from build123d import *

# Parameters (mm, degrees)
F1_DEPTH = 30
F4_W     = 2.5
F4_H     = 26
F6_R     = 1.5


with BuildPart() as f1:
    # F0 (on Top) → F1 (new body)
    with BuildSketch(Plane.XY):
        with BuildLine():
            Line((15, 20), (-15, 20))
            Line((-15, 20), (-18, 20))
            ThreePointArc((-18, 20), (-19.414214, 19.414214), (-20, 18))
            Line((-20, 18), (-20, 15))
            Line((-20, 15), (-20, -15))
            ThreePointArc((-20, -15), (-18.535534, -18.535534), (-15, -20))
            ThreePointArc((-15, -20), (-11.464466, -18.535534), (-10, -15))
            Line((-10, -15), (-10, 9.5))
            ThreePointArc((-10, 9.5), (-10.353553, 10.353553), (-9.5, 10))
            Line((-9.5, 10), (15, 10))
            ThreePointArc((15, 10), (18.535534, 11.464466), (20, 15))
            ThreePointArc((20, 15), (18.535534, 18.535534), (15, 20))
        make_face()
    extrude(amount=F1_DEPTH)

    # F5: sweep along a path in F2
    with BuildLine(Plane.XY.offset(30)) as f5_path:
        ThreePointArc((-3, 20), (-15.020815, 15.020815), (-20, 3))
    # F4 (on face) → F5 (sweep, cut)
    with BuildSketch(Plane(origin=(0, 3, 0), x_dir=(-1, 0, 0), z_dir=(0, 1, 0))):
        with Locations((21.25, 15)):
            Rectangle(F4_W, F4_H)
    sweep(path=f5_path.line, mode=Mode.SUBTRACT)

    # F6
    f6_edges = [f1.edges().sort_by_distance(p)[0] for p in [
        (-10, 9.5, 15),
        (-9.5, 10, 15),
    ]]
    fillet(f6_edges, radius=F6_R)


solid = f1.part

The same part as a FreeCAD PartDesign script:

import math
import FreeCAD as App
import Part
import Sketcher


def edges_at(feature, points):
    """Names of the edges that pass closest to the given points."""
    edges = feature.Shape.Edges
    near = lambda p: min(range(len(edges)), key=lambda i: edges[i].distToShape(Part.Vertex(*p))[0])
    return sorted({f"Edge{near(p) + 1}" for p in points})


def add_polygon(sketch, points):
    """Adds a closed chain of lines whose ends are joined by coincident constraints."""
    first, n = sketch.GeometryCount, len(points)
    for a, b in zip(points, points[1:] + points[:1]):
        sketch.addGeometry(Part.LineSegment(App.Vector(*a, 0), App.Vector(*b, 0)), False)
    for i in range(n):
        sketch.addConstraint(Sketcher.Constraint("Coincident", first + i, 2, first + (i + 1) % n, 1))

doc = App.newDocument("Part")
params = doc.addObject("Spreadsheet::Sheet", "Params")
for row, (alias, value) in enumerate([
    ("sketch1_radius", "1.999999 mm"),
    ("sketch1_radius2", "5 mm"),
    ("sketch1_radius3", "0.5 mm"),
    ("sketch1_width", "33 mm"),
    ("pad1_length", "30 mm"),
    ("sketch2_height", "26 mm"),
    ("sketch2_width", "2.5 mm"),
    ("sketch3_radius", "17.000001 mm"),
    ("fillet_radius", "1.5 mm"),
], start=1):
    params.set(f"A{row}", alias)
    params.set(f"B{row}", "=" + value)
    params.setAlias(f"B{row}", alias)

body = doc.addObject("PartDesign::Body", "Body")

# Sketch on XY plane
sketch1 = doc.addObject("Sketcher::SketchObject", "Sketch")
body.addObject(sketch1)
sketch1.AttachmentSupport = (doc.XY_Plane, [""])
sketch1.MapMode = "FlatFace"
sketch1.addGeometry(Part.LineSegment(App.Vector(15, 20, 0), App.Vector(-18, 20, 0)), False)
sketch1.addGeometry(Part.ArcOfCircle(Part.Circle(App.Vector(-18, 18, 0), App.Vector(0, 0, 1), 2), math.radians(90), math.radians(180)), False)
sketch1.addGeometry(Part.LineSegment(App.Vector(-20, 18, 0), App.Vector(-20, -15, 0)), False)
sketch1.addGeometry(Part.ArcOfCircle(Part.Circle(App.Vector(-15, -15, 0), App.Vector(0, 0, 1), 5), math.radians(180), math.radians(270)), False)
sketch1.addGeometry(Part.ArcOfCircle(Part.Circle(App.Vector(-15, -15, 0), App.Vector(0, 0, 1), 5), math.radians(-90), math.radians(0)), False)
sketch1.addGeometry(Part.LineSegment(App.Vector(-10, -15, 0), App.Vector(-10, 9.5, 0)), False)
sketch1.addGeometry(Part.ArcOfCircle(Part.Circle(App.Vector(-10, 10, 0), App.Vector(0, 0, 1), 0.5), math.radians(0), math.radians(270)), False)
sketch1.addGeometry(Part.LineSegment(App.Vector(-9.5, 10, 0), App.Vector(15, 10, 0)), False)
sketch1.addGeometry(Part.ArcOfCircle(Part.Circle(App.Vector(15, 15, 0), App.Vector(0, 0, 1), 5), math.radians(-90), math.radians(0)), False)
sketch1.addGeometry(Part.ArcOfCircle(Part.Circle(App.Vector(15, 15, 0), App.Vector(0, 0, 1), 5), math.radians(0), math.radians(90)), False)
sketch1.addConstraint(Sketcher.Constraint("Tangent", 0, 2, 1, 1))
sketch1.addConstraint(Sketcher.Constraint("Tangent", 1, 2, 2, 1))
sketch1.addConstraint(Sketcher.Constraint("Tangent", 2, 2, 3, 1))
sketch1.addConstraint(Sketcher.Constraint("Tangent", 3, 2, 4, 1))
sketch1.addConstraint(Sketcher.Constraint("Tangent", 4, 2, 5, 1))
sketch1.addConstraint(Sketcher.Constraint("Coincident", 5, 2, 6, 2))
sketch1.addConstraint(Sketcher.Constraint("Coincident", 6, 1, 7, 1))
sketch1.addConstraint(Sketcher.Constraint("Tangent", 7, 2, 8, 1))
sketch1.addConstraint(Sketcher.Constraint("Tangent", 8, 2, 9, 1))
sketch1.addConstraint(Sketcher.Constraint("Tangent", 9, 2, 0, 1))
sketch1.addConstraint(Sketcher.Constraint("Horizontal", 0))
sketch1.addConstraint(Sketcher.Constraint("Vertical", 2))
sketch1.addConstraint(Sketcher.Constraint("Vertical", 5))
sketch1.addConstraint(Sketcher.Constraint("Horizontal", 7))
sketch1.addConstraint(Sketcher.Constraint("Equal", 3, 4))
sketch1.addConstraint(Sketcher.Constraint("Equal", 4, 8))
sketch1.addConstraint(Sketcher.Constraint("Equal", 8, 9))
sketch1.addConstraint(Sketcher.Constraint("Symmetric", 3, 3, 8, 3, -1, 1))
sketch1.addConstraint(Sketcher.Constraint("Horizontal", 9, 3, 8, 2))
sketch1.addConstraint(Sketcher.Constraint("Vertical", 4, 3, 3, 2))
sketch1.addConstraint(Sketcher.Constraint("Vertical", 6, 3, 4, 2))
sketch1.addConstraint(Sketcher.Constraint("Equal", 0, 2))
sketch1.addConstraint(Sketcher.Constraint("Equal", 7, 5))
sketch1.addConstraint(Sketcher.Constraint("Radius", 1, 1.999999))
sketch1.addConstraint(Sketcher.Constraint("Radius", 3, 5.0))
sketch1.addConstraint(Sketcher.Constraint("Radius", 6, 0.5))
sketch1.addConstraint(Sketcher.Constraint("DistanceX", 0, 2, 0, 1, 33.0))
sketch1.setExpression("Constraints[23]", "Params.sketch1_radius")
sketch1.setExpression("Constraints[24]", "Params.sketch1_radius2")
sketch1.setExpression("Constraints[25]", "Params.sketch1_radius3")
sketch1.setExpression("Constraints[26]", "Params.sketch1_width")
pad1 = doc.addObject("PartDesign::Pad", "Pad")
body.addObject(pad1)
pad1.Profile = sketch1
pad1.setExpression("Length", "Params.pad1_length")

# Sketch on XZ plane
sketch2 = doc.addObject("Sketcher::SketchObject", "Sketch001")
body.addObject(sketch2)
sketch2.AttachmentSupport = (doc.XZ_Plane, [""])
sketch2.MapMode = "FlatFace"
sketch2.AttachmentOffset = App.Placement(App.Vector(0, 0, -3), App.Rotation())
add_polygon(sketch2, [(-20, 28), (-20, 2), (-22.5, 2), (-22.5, 28)])  # lines 0-3
sketch2.addConstraint(Sketcher.Constraint("Vertical", 0))
sketch2.addConstraint(Sketcher.Constraint("Horizontal", 1))
sketch2.addConstraint(Sketcher.Constraint("Vertical", 2))
sketch2.addConstraint(Sketcher.Constraint("Horizontal", 3))
sketch2.addConstraint(Sketcher.Constraint("DistanceY", 0, 2, 0, 1, 26.0))
sketch2.addConstraint(Sketcher.Constraint("DistanceX", 1, 2, 1, 1, 2.5))
sketch2.addConstraint(Sketcher.Constraint("DistanceX", 0, 2, -1, 1, 20.0))
sketch2.addConstraint(Sketcher.Constraint("DistanceY", -1, 1, 0, 2, 2.0))
sketch2.setExpression("Constraints[8]", "Params.sketch2_height")
sketch2.setExpression("Constraints[9]", "Params.sketch2_width")

# Sketch on XY plane
sketch3 = doc.addObject("Sketcher::SketchObject", "Sketch002")
body.addObject(sketch3)
sketch3.AttachmentSupport = (doc.XY_Plane, [""])
sketch3.MapMode = "FlatFace"
sketch3.AttachmentOffset = App.Placement(App.Vector(0, 0, 30), App.Rotation())
sketch3.addGeometry(Part.ArcOfCircle(Part.Circle(App.Vector(-3, 3, 0), App.Vector(0, 0, 1), 17), math.radians(90), math.radians(180)), False)
sketch3.addConstraint(Sketcher.Constraint("Radius", 0, 17.000001))
sketch3.addConstraint(Sketcher.Constraint("DistanceX", 0, 3, -1, 1, 2.999999))
sketch3.addConstraint(Sketcher.Constraint("DistanceY", -1, 1, 0, 3, 2.999999))
sketch3.addConstraint(Sketcher.Constraint("DistanceX", 0, 1, -1, 1, 3.0))
sketch3.addConstraint(Sketcher.Constraint("DistanceY", -1, 1, 0, 2, 3.0))
sketch3.setExpression("Constraints[0]", "Params.sketch3_radius")
doc.recompute()

subtractivepipe = doc.addObject("PartDesign::SubtractivePipe", "SubtractivePipe")
body.addObject(subtractivepipe)
subtractivepipe.Profile = sketch2
subtractivepipe.Spine = (sketch3, ["Edge1"])
doc.recompute()

fillet = doc.addObject("PartDesign::Fillet", "Fillet")
body.addObject(fillet)
fillet.Base = (subtractivepipe, edges_at(subtractivepipe, [(-10, 9.5, 15), (-9.5, 10, 15)]))
fillet.setExpression("Radius", "Params.fillet_radius")

doc.recompute()
